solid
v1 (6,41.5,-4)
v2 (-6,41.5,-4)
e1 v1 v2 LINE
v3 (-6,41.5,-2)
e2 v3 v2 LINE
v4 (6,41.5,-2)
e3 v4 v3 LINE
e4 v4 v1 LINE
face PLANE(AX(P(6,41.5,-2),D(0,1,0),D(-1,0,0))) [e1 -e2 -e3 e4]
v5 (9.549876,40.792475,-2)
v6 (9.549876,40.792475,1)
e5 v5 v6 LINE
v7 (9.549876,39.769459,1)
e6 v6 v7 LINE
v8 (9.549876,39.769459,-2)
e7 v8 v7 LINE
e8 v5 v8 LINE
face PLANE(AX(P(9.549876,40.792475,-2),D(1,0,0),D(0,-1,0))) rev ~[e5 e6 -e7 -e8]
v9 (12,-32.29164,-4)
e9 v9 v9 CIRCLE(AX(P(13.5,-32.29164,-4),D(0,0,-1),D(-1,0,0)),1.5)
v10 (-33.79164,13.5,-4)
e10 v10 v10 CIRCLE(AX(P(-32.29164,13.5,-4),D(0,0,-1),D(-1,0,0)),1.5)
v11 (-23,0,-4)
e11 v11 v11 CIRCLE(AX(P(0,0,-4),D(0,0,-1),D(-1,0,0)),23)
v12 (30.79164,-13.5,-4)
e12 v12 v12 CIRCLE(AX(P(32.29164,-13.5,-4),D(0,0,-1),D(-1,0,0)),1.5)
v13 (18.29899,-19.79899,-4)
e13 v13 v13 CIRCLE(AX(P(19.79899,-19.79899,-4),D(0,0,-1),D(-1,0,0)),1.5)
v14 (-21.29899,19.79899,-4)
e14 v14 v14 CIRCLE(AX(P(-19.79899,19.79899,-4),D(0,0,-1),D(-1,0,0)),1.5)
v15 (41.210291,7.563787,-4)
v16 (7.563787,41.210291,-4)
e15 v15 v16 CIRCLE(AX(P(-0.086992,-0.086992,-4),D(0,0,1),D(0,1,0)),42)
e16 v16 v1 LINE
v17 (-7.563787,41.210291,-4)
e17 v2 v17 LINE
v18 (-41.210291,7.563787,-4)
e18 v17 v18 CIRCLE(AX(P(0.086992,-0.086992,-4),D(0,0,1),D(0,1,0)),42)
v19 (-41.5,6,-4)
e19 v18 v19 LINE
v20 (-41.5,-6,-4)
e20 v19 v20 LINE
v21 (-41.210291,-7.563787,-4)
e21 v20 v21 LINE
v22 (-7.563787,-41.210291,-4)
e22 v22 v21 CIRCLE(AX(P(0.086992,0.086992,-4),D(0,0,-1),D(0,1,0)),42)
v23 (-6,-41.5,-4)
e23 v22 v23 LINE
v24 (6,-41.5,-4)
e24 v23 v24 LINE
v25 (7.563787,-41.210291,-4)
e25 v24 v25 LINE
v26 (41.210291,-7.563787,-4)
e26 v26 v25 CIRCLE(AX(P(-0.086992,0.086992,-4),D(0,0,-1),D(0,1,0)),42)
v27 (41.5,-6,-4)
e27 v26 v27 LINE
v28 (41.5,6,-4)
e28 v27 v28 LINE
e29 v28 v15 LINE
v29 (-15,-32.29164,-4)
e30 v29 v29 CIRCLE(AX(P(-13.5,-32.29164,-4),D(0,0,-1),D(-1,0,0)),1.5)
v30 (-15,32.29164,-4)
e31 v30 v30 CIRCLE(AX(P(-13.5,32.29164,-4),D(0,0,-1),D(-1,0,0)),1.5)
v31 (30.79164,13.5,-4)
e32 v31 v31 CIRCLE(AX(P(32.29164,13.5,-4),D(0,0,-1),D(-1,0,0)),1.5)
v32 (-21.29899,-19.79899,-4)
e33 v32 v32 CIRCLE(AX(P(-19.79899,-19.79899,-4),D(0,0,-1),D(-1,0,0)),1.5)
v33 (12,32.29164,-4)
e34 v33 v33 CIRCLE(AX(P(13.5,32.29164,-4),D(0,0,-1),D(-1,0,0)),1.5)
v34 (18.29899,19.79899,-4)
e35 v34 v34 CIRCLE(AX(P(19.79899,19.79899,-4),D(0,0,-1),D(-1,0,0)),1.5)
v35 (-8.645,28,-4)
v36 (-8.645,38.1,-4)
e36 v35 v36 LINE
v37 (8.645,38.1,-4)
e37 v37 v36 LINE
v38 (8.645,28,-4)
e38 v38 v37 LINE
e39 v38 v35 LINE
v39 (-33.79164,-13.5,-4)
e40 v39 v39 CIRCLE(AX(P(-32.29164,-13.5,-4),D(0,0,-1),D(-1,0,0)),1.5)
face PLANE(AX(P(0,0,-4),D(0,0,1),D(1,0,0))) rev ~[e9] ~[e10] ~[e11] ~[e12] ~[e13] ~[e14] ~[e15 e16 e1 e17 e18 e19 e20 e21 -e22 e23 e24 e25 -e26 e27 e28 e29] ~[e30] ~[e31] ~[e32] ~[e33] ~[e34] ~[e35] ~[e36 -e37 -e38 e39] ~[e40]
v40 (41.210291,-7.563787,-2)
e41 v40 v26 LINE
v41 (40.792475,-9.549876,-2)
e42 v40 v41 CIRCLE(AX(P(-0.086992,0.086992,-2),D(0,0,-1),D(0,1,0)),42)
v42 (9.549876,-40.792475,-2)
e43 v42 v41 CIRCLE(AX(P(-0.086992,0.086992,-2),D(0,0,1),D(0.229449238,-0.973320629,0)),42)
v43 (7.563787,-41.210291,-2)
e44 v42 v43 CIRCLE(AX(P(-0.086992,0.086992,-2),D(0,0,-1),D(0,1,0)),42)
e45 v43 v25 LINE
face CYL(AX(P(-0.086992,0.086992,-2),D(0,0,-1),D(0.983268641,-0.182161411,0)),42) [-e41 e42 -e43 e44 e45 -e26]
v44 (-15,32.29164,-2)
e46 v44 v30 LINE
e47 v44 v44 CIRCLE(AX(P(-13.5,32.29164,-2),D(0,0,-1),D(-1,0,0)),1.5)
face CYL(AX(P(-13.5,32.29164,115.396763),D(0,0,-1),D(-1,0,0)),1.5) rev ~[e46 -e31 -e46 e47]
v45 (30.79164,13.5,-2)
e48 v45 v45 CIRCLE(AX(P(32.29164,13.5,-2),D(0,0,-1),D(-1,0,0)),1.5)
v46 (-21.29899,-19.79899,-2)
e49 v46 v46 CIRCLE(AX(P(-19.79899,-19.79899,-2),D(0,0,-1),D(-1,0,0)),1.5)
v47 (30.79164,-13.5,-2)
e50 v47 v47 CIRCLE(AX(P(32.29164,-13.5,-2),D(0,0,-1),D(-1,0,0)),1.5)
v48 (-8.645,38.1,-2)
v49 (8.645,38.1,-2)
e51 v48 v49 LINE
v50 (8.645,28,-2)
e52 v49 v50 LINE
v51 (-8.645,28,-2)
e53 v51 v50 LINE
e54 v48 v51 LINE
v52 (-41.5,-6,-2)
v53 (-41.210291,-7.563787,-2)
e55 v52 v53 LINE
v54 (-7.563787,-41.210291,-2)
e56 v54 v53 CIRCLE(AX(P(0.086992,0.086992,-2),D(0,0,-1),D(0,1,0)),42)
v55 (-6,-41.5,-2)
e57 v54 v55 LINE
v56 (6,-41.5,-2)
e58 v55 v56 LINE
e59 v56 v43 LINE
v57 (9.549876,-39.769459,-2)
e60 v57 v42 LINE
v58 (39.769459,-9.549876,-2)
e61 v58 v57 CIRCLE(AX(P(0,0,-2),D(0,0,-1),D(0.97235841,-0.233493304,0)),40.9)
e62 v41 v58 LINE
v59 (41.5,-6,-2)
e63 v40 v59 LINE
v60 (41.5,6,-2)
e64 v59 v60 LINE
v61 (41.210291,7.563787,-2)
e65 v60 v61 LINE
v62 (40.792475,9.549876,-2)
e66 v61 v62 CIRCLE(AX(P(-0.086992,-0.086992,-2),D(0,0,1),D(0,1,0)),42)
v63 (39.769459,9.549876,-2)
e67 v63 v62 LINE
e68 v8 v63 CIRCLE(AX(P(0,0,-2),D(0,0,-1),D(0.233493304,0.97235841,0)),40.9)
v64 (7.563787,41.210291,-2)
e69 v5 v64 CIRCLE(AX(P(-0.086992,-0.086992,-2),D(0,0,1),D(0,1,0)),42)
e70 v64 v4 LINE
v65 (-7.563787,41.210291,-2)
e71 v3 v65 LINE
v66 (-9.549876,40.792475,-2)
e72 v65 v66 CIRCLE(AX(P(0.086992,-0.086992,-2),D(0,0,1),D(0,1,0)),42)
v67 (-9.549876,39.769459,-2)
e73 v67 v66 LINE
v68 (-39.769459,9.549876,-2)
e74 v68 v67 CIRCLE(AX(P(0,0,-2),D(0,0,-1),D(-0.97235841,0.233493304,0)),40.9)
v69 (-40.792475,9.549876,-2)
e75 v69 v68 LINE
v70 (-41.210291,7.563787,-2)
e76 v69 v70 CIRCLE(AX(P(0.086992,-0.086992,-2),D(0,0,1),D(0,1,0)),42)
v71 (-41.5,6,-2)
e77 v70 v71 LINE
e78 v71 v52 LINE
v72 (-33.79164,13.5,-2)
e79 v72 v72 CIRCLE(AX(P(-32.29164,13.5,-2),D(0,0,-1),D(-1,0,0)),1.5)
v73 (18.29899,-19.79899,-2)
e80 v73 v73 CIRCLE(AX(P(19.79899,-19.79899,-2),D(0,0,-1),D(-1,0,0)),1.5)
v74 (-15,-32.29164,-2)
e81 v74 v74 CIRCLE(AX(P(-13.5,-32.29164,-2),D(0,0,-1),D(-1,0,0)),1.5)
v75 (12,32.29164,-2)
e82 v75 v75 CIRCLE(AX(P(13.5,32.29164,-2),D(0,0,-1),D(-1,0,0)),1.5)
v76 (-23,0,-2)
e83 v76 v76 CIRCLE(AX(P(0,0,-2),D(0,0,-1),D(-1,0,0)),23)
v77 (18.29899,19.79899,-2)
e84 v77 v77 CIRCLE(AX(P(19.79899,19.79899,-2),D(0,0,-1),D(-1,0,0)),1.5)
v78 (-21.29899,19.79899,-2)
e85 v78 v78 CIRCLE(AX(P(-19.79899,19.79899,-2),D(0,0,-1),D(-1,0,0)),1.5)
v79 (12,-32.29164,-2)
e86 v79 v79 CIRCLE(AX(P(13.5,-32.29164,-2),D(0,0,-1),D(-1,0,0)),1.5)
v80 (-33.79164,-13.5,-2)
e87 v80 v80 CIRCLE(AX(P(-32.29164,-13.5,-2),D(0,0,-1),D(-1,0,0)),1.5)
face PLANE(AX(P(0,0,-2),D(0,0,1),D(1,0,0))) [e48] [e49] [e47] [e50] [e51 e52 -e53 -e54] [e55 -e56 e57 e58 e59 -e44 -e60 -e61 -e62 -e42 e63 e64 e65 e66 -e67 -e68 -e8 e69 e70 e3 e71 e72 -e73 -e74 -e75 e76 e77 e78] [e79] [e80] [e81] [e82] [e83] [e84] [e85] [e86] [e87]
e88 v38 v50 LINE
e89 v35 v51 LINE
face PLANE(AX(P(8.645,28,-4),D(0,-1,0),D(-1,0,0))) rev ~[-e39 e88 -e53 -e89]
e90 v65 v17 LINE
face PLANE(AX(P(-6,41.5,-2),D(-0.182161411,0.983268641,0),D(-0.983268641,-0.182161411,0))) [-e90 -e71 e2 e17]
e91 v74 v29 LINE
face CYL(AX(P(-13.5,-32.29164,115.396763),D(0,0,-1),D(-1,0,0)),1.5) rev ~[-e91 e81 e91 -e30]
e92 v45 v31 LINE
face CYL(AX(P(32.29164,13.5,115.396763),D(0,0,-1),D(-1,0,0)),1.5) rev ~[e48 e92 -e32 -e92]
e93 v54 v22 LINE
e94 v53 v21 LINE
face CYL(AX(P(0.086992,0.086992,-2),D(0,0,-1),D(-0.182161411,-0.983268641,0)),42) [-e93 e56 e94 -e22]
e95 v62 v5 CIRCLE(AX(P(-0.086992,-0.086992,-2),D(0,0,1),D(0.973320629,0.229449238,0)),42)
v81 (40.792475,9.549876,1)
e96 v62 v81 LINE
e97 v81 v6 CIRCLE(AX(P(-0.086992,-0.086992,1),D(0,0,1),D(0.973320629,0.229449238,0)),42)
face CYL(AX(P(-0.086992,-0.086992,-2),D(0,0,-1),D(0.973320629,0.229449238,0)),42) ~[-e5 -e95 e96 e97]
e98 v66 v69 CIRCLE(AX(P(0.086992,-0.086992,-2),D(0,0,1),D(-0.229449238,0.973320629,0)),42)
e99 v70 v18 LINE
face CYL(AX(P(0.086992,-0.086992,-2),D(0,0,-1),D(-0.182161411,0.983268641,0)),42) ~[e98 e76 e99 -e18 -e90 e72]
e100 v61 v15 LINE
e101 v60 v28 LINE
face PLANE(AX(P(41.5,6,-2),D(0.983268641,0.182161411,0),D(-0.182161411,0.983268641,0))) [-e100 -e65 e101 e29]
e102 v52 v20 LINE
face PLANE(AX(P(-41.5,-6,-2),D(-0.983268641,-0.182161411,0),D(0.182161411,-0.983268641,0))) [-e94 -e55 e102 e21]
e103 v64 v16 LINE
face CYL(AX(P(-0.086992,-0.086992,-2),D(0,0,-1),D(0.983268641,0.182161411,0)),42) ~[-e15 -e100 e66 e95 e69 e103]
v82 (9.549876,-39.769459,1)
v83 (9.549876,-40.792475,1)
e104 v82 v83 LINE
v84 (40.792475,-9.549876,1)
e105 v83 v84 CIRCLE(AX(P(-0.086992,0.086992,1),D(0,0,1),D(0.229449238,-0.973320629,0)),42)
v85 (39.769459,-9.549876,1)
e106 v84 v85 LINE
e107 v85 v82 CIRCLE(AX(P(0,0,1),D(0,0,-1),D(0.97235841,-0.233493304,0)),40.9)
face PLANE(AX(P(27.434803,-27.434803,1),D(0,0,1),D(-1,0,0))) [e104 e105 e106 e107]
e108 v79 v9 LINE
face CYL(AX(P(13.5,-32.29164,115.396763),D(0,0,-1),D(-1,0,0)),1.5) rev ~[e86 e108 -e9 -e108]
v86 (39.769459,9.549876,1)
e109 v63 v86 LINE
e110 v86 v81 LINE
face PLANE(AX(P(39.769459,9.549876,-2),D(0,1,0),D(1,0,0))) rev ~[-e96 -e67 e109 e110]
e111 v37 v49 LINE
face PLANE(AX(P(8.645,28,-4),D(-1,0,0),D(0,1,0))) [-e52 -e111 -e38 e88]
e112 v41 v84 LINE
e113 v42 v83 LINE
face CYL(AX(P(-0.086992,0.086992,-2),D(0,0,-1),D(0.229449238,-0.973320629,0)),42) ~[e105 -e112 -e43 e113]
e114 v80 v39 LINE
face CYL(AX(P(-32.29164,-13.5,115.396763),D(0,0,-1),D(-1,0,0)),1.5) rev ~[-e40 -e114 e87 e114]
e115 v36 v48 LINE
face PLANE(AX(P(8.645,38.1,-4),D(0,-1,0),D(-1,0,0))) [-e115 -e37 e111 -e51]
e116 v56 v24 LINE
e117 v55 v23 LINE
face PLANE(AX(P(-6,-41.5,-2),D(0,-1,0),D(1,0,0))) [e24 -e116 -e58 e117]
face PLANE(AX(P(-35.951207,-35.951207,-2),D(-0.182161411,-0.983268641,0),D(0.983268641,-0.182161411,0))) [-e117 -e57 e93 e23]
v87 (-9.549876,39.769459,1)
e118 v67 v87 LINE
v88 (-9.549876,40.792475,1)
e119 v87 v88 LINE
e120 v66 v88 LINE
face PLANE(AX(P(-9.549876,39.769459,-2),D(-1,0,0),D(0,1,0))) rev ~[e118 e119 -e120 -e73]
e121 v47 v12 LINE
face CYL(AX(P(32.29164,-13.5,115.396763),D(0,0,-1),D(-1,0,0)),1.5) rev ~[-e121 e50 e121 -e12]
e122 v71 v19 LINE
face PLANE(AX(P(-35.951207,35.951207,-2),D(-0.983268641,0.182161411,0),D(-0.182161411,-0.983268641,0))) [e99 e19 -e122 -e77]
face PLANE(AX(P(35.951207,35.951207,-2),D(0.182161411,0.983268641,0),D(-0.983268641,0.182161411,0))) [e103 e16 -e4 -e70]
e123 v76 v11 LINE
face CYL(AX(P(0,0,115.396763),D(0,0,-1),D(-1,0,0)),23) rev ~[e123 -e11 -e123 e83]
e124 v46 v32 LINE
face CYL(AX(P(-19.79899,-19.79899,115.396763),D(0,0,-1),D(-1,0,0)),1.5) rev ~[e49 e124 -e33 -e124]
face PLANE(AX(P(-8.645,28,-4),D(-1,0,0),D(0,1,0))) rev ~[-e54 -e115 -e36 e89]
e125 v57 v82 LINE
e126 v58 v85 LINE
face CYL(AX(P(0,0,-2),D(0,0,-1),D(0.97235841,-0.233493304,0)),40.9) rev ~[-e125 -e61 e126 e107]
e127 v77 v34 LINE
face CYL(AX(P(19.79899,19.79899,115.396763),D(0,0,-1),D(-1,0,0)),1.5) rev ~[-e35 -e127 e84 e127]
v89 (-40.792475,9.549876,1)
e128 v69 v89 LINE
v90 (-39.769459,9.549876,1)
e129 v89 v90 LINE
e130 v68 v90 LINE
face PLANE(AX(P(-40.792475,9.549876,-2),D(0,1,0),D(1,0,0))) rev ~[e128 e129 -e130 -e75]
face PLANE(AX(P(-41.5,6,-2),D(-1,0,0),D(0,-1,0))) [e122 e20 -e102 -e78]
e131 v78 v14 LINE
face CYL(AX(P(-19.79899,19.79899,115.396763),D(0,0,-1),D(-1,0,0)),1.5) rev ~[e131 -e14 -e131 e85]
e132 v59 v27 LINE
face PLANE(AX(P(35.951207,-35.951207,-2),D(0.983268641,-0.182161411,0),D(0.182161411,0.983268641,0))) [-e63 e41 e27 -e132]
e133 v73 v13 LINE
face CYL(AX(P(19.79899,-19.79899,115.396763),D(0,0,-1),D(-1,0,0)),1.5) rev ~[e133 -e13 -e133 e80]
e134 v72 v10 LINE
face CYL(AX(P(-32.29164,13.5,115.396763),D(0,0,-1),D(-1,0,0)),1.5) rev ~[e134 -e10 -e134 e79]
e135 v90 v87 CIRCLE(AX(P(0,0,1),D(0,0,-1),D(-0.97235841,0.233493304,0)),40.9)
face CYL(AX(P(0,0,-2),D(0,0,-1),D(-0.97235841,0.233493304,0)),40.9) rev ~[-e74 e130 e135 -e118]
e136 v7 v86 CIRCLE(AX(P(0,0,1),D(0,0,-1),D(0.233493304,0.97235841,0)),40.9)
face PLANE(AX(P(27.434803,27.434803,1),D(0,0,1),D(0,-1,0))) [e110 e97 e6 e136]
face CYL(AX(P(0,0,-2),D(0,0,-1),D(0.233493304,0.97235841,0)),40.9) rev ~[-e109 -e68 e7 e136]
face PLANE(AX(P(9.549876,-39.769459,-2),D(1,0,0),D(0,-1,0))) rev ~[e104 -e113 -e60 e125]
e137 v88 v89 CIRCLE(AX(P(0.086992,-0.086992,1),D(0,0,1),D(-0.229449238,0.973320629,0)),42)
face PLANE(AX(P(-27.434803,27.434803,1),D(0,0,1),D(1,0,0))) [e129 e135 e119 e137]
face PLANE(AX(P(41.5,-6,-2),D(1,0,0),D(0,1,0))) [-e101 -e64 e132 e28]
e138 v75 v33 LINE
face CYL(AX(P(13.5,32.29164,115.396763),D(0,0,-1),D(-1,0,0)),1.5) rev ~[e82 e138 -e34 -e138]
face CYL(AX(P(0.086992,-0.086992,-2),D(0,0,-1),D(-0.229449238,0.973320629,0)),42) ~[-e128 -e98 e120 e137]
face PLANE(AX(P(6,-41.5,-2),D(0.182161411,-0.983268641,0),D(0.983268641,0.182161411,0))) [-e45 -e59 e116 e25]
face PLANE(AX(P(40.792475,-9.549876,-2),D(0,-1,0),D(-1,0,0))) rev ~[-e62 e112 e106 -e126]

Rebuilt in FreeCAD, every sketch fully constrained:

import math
import FreeCAD as App
import Part
import Sketcher


def edges_at(feature, points):
    """Names of the edges that pass closest to the given points."""
    edges = feature.Shape.Edges
    near = lambda p: min(range(len(edges)), key=lambda i: edges[i].distToShape(Part.Vertex(*p))[0])
    return sorted({f"Edge{near(p) + 1}" for p in points})


def add_polygon(sketch, points):
    """Adds a closed chain of lines whose ends are joined by coincident constraints."""
    first, n = sketch.GeometryCount, len(points)
    for a, b in zip(points, points[1:] + points[:1]):
        sketch.addGeometry(Part.LineSegment(App.Vector(*a, 0), App.Vector(*b, 0)), False)
    for i in range(n):
        sketch.addConstraint(Sketcher.Constraint("Coincident", first + i, 2, first + (i + 1) % n, 1))

doc = App.newDocument("Part")
body = doc.addObject("PartDesign::Body", "Body")

sketch1 = doc.addObject("Sketcher::SketchObject", "Sketch")
body.addObject(sketch1)
sketch1.AttachmentSupport = (doc.XY_Plane, [""])
sketch1.MapMode = "FlatFace"
sketch1.AttachmentOffset = App.Placement(App.Vector(0, 0, -2), App.Rotation())
add_polygon(sketch1, [(42, 6), (36, 36), (6, 42), (-6, 42), (-36, 36), (-42, 6), (-42, -6), (-36, -36), (-6, -42), (6, -42), (36, -36), (42, -6)])
sketch1.addConstraint([
    Sketcher.Constraint("Horizontal", 2),
    Sketcher.Constraint("Vertical", 5),
    Sketcher.Constraint("Horizontal", 8),
    Sketcher.Constraint("Vertical", 11),
    Sketcher.Constraint("Symmetric", 0, 2, 6, 2, -1, 1),
    Sketcher.Constraint("Symmetric", 1, 2, 7, 2, -1, 1),
    Sketcher.Constraint("Symmetric", 3, 2, 9, 2, -1, 1),
    Sketcher.Constraint("Symmetric", 4, 2, 10, 2, -1, 1),
    Sketcher.Constraint("Symmetric", 0, 2, 3, 2, -2),
    Sketcher.Constraint("Perpendicular", 0, 3),
    Sketcher.Constraint("Perpendicular", 1, 4),
    Sketcher.Constraint("Perpendicular", 3, 6),
    Sketcher.Constraint("Perpendicular", 6, 9),
    Sketcher.Constraint("Horizontal", 5, 2, 10, 2),
    Sketcher.Constraint("Equal", 8, 5),
    Sketcher.Constraint("Equal", 0, 1),
    Sketcher.Constraint("DistanceX", 2, 2, 2, 1, 12.0),
    Sketcher.Constraint("DistanceY", 7, 2, 2, 2, 83.0),
    Sketcher.Constraint("Distance", 0, 30.460859),
])
pad1 = doc.addObject("PartDesign::Pad", "Pad")
body.addObject(pad1)
pad1.Profile = sketch1
pad1.Length = 2
pad1.Reversed = True

sketch2 = doc.addObject("Sketcher::SketchObject", "Sketch001")
body.addObject(sketch2)
sketch2.AttachmentSupport = (doc.XY_Plane, [""])
sketch2.MapMode = "FlatFace"
sketch2.AttachmentOffset = App.Placement(App.Vector(0, 0, -2), App.Rotation())
sketch2.addGeometry([
    Part.Circle(App.Vector(32.3, -13.5, 0), App.Vector(0, 0, 1), 1.5),
    Part.Circle(App.Vector(32.3, 13.5, 0), App.Vector(0, 0, 1), 1.5),
    Part.Circle(App.Vector(19.8, 19.8, 0), App.Vector(0, 0, 1), 1.5),
    Part.Circle(App.Vector(19.8, -19.8, 0), App.Vector(0, 0, 1), 1.5),
    Part.Circle(App.Vector(13.5, -32.3, 0), App.Vector(0, 0, 1), 1.5),
    Part.Circle(App.Vector(-13.5, -32.3, 0), App.Vector(0, 0, 1), 1.5),
    Part.Circle(App.Vector(-19.8, -19.8, 0), App.Vector(0, 0, 1), 1.5),
    Part.Circle(App.Vector(-19.8, 19.8, 0), App.Vector(0, 0, 1), 1.5),
    Part.Circle(App.Vector(-13.5, 32.3, 0), App.Vector(0, 0, 1), 1.5),
    Part.Circle(App.Vector(13.5, 32.3, 0), App.Vector(0, 0, 1), 1.5),
    Part.Circle(App.Vector(-32.3, 13.5, 0), App.Vector(0, 0, 1), 1.5),
    Part.Circle(App.Vector(-32.3, -13.5, 0), App.Vector(0, 0, 1), 1.5),
], False)
sketch2.addConstraint([
    Sketcher.Constraint("Equal", 0, 1),
    Sketcher.Constraint("Equal", 1, 2),
    Sketcher.Constraint("Equal", 2, 3),
    Sketcher.Constraint("Equal", 3, 4),
    Sketcher.Constraint("Equal", 4, 5),
    Sketcher.Constraint("Equal", 5, 6),
    Sketcher.Constraint("Equal", 6, 7),
    Sketcher.Constraint("Equal", 7, 8),
    Sketcher.Constraint("Equal", 8, 9),
    Sketcher.Constraint("Equal", 9, 10),
    Sketcher.Constraint("Equal", 10, 11),
    Sketcher.Constraint("Symmetric", 2, 3, 6, 3, -1, 1),
    Sketcher.Constraint("Symmetric", 3, 3, 7, 3, -1, 1),
    Sketcher.Constraint("Symmetric", 4, 3, 8, 3, -1, 1),
    Sketcher.Constraint("Symmetric", 5, 3, 9, 3, -1, 1),
    Sketcher.Constraint("Symmetric", 0, 3, 10, 3, -1, 1),
    Sketcher.Constraint("Symmetric", 1, 3, 11, 3, -1, 1),
    Sketcher.Constraint("Symmetric", 4, 3, 5, 3, -2),
    Sketcher.Constraint("Symmetric", 3, 3, 6, 3, -2),
    Sketcher.Constraint("Symmetric", 1, 3, 10, 3, -2),
    Sketcher.Constraint("Diameter", 0, 3.0),
    Sketcher.Constraint("DistanceY", 0, 3, 1, 3, 27.0),
    Sketcher.Constraint("DistanceX", 5, 3, 4, 3, 27.0),
    Sketcher.Constraint("DistanceX", -1, 1, 0, 3, 32.29164),
    Sketcher.Constraint("DistanceX", -1, 1, 2, 3, 19.79899),
    Sketcher.Constraint("DistanceY", -1, 1, 2, 3, 19.79899),
    Sketcher.Constraint("DistanceY", 4, 3, -1, 1, 32.29164),
])
doc.recompute()
hole = doc.addObject("PartDesign::Hole", "Hole")
body.addObject(hole)
hole.Profile = sketch2
hole.ThreadType = "None"
hole.Diameter = 3
hole.DepthType = "ThroughAll"

sketch3 = doc.addObject("Sketcher::SketchObject", "Sketch002")
body.addObject(sketch3)
sketch3.AttachmentSupport = (doc.XY_Plane, [""])
sketch3.MapMode = "FlatFace"
sketch3.AttachmentOffset = App.Placement(App.Vector(0, 0, -2), App.Rotation())
sketch3.addGeometry(Part.Circle(App.Vector(0, 0, 0), App.Vector(0, 0, 1), 23), False)
sketch3.addConstraint([
    Sketcher.Constraint("Coincident", 0, 3, -1, 1),
    Sketcher.Constraint("Diameter", 0, 46.0),
])
doc.recompute()
hole2 = doc.addObject("PartDesign::Hole", "Hole001")
body.addObject(hole2)
hole2.Profile = sketch3
hole2.ThreadType = "None"
hole2.Diameter = 46
hole2.DepthType = "ThroughAll"
doc.recompute()

fillet = doc.addObject("PartDesign::Fillet", "Fillet")
body.addObject(fillet)
fillet.Base = (hole2, edges_at(hole2, [
    (35.951, -35.951, -3),
    (-35.951, -35.951, -3),
    (-35.951, 35.951, -3),
    (35.951, 35.951, -3),
]))
fillet.Radius = 42

sketch4 = doc.addObject("Sketcher::SketchObject", "Sketch003")
body.addObject(sketch4)
sketch4.AttachmentSupport = (doc.XY_Plane, [""])
sketch4.MapMode = "FlatFace"
sketch4.AttachmentOffset = App.Placement(App.Vector(0, 0, -2), App.Rotation())
sketch4.addGeometry([
    Part.LineSegment(App.Vector(-9.5, 39.8, 0), App.Vector(-9.5, 40.8, 0)),
    Part.ArcOfCircle(Part.Circle(App.Vector(0.1, -0.1, 0), App.Vector(0, 0, 1), 42), math.radians(103), math.radians(167)),
    Part.LineSegment(App.Vector(-40.8, 9.5, 0), App.Vector(-39.8, 9.5, 0)),
    Part.ArcOfCircle(Part.Circle(App.Vector(0, 0, 0), App.Vector(0, 0, 1), 40.9), math.radians(104), math.radians(166)),
], False)
sketch4.addConstraint([
    Sketcher.Constraint("Coincident", 0, 2, 1, 1),
    Sketcher.Constraint("Coincident", 1, 2, 2, 1),
    Sketcher.Constraint("Coincident", 2, 2, 3, 2),
    Sketcher.Constraint("Coincident", 3, 1, 0, 1),
    Sketcher.Constraint("Vertical", 0),
    Sketcher.Constraint("Horizontal", 2),
    Sketcher.Constraint("Coincident", 3, 3, -1, 1),
    Sketcher.Constraint("Equal", 2, 0),
    Sketcher.Constraint("Radius", 1, 42.0),
    Sketcher.Constraint("Radius", 3, 40.9),
    Sketcher.Constraint("DistanceX", 1, 2, 0, 2, 31.242598),
    Sketcher.Constraint("DistanceY", 1, 2, 0, 2, 31.242598),
    Sketcher.Constraint("DistanceX", 2, 1, 2, 2, 1.023016),
])
pad2 = doc.addObject("PartDesign::Pad", "Pad001")
body.addObject(pad2)
pad2.Profile = sketch4
pad2.Length = 3
doc.recompute()

polarpattern = doc.addObject("PartDesign::PolarPattern", "PolarPattern")
body.addObject(polarpattern)
polarpattern.Originals = [pad2]
polarpattern.Axis = (doc.Z_Axis, [""])
polarpattern.Angle = 180
polarpattern.Occurrences = 3
polarpattern.Reversed = True
body.Tip = polarpattern

sketch5 = doc.addObject("Sketcher::SketchObject", "Sketch004")
body.addObject(sketch5)
sketch5.AttachmentSupport = (doc.XY_Plane, [""])
sketch5.MapMode = "FlatFace"
sketch5.AttachmentOffset = App.Placement(App.Vector(0, 0, -4), App.Rotation())
add_polygon(sketch5, [(9, 38), (9, 28), (-9, 28), (-9, 38)])
sketch5.addConstraint([
    Sketcher.Constraint("Vertical", 0),
    Sketcher.Constraint("Horizontal", 1),
    Sketcher.Constraint("Vertical", 2),
    Sketcher.Constraint("Horizontal", 3),
    Sketcher.Constraint("DistanceY", 0, 2, 0, 1, 10.1),
    Sketcher.Constraint("DistanceY", -1, 1, 0, 2, 28.0),
    Sketcher.Constraint("DistanceX", 1, 2, 1, 1, 17.29),
    Sketcher.Constraint("DistanceX", -1, 1, 0, 2, 8.645),
])
pocket1 = doc.addObject("PartDesign::Pocket", "Pocket")
body.addObject(pocket1)
pocket1.Profile = sketch5
pocket1.Length = 10
pocket1.Reversed = True

doc.recompute()
